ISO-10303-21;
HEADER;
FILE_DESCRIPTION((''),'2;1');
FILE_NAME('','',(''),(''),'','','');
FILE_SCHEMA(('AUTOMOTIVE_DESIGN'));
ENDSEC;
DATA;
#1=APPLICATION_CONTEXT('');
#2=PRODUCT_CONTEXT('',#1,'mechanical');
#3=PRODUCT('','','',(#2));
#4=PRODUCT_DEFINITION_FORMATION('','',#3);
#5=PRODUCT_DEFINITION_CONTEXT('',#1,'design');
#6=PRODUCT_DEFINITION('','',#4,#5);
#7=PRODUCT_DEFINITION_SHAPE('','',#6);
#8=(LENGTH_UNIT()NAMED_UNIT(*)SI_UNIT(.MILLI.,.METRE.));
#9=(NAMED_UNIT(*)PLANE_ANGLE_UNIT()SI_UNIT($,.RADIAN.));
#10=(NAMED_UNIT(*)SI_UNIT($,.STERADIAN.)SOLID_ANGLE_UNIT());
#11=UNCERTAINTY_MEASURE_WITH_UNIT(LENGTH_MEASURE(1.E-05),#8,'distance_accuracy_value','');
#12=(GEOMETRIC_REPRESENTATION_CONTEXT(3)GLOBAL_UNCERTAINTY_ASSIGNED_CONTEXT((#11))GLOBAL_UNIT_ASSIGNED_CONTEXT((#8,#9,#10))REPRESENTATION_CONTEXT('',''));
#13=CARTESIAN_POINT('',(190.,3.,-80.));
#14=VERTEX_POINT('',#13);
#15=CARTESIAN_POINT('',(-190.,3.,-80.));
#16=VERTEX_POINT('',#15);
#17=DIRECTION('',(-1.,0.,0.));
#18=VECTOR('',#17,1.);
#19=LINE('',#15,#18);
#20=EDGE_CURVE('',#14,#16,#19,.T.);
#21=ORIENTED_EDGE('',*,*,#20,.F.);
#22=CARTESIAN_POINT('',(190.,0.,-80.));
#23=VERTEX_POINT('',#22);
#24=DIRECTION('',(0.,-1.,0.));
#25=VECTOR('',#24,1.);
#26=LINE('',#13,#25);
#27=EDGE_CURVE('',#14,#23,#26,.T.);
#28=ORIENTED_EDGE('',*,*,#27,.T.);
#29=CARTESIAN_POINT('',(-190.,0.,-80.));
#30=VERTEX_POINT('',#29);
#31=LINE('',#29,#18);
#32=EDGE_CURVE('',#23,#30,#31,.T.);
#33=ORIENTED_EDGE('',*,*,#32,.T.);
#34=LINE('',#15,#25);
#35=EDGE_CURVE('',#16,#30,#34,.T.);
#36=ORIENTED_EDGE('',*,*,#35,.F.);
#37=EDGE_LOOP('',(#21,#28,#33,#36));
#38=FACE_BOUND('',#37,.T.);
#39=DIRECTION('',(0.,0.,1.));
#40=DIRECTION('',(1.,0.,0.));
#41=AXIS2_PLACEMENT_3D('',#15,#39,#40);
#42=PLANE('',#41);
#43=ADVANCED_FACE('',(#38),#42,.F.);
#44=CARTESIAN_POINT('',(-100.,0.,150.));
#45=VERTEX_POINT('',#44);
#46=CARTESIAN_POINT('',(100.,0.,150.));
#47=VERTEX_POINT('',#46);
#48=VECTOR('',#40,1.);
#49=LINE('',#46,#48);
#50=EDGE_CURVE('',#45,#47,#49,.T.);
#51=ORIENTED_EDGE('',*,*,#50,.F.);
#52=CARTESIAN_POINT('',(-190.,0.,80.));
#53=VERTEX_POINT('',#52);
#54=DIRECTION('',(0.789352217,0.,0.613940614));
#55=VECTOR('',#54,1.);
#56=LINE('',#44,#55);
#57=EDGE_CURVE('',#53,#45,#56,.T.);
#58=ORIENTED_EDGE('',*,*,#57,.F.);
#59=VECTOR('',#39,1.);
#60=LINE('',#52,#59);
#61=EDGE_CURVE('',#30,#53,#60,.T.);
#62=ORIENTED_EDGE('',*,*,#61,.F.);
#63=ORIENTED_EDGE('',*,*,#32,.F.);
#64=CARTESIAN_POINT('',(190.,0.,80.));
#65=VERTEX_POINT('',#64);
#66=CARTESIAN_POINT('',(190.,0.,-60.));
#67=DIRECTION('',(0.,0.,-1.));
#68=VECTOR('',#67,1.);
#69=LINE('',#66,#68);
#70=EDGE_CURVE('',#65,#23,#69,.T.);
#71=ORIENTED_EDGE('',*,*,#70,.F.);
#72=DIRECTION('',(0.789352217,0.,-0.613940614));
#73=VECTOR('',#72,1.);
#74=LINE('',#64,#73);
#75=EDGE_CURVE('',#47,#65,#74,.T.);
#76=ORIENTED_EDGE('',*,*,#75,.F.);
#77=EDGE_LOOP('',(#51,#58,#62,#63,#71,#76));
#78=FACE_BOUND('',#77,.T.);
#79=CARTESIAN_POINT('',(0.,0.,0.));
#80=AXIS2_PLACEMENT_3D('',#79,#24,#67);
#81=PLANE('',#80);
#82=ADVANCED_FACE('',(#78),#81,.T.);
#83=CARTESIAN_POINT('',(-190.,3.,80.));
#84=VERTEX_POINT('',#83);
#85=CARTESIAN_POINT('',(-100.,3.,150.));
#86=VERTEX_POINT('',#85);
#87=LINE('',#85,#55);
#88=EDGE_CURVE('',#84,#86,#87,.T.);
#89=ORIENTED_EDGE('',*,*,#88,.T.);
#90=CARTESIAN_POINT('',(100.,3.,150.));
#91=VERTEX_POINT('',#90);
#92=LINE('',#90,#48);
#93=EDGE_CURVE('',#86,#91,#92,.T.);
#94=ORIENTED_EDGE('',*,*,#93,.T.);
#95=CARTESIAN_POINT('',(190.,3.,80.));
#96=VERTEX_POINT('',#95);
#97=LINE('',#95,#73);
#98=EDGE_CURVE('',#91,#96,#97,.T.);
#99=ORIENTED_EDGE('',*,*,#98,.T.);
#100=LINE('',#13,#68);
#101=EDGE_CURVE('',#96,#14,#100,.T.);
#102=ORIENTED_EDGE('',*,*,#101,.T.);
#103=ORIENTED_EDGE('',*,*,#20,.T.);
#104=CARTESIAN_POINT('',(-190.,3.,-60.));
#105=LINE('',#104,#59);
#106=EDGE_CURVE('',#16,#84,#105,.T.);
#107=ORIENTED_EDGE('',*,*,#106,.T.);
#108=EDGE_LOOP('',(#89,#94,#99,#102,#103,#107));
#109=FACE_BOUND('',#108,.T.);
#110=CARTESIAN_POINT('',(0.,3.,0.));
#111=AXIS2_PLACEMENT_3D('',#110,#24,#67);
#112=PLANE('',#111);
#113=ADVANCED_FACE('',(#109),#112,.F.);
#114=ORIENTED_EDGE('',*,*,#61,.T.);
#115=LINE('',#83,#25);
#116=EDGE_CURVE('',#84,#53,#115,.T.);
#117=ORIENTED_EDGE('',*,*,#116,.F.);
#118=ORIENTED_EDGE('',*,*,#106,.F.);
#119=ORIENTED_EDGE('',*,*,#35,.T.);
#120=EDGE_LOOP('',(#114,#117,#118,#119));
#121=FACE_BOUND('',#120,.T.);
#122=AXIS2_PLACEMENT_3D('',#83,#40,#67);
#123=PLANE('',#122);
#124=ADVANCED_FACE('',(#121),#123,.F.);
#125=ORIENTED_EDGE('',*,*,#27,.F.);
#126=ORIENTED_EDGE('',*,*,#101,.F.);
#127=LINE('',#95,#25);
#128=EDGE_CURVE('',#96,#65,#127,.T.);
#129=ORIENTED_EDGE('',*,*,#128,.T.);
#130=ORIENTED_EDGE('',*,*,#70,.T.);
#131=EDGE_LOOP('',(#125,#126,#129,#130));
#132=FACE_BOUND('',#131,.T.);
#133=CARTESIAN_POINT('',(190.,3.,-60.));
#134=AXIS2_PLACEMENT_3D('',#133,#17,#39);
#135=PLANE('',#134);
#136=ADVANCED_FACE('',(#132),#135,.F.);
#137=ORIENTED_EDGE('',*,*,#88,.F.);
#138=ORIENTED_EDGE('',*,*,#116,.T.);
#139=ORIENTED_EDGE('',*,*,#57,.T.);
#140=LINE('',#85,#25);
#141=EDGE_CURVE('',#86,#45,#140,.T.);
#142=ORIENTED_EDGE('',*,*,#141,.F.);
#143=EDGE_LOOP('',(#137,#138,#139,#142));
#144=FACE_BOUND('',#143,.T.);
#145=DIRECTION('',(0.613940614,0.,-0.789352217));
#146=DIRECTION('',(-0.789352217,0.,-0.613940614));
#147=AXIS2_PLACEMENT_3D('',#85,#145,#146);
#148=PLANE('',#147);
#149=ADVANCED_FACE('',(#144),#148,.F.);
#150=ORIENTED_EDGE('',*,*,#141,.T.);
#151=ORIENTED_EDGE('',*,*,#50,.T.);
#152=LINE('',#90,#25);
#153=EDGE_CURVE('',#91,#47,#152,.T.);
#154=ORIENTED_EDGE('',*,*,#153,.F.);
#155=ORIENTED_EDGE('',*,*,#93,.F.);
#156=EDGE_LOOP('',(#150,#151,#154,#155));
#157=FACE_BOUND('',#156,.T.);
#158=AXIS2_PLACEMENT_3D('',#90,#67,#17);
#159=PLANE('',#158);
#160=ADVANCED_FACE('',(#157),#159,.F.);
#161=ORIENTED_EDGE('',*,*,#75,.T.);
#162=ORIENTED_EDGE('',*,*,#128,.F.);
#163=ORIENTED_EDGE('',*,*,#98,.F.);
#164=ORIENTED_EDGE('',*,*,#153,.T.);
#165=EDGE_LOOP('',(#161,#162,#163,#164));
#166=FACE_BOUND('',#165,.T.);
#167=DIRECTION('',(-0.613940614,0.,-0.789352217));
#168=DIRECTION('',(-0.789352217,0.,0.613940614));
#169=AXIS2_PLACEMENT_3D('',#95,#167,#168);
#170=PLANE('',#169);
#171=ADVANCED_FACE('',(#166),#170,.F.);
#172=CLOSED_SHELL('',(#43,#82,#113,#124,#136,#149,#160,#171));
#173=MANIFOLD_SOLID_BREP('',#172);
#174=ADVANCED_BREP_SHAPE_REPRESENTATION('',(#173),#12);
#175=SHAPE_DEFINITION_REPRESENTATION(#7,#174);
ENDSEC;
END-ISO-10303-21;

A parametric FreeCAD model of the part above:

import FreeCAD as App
import Part
import Sketcher
from FreeCAD import Vector


def add_polygon(sketch, points):
    """Adds a closed chain of lines whose ends are joined by coincident constraints."""
    first, n = sketch.GeometryCount, len(points)
    for a, b in zip(points, points[1:] + points[:1]):
        sketch.addGeometry(Part.LineSegment(App.Vector(*a, 0), App.Vector(*b, 0)), False)
    for i in range(n):
        sketch.addConstraint(Sketcher.Constraint("Coincident", first + i, 2, first + (i + 1) % n, 1))

doc = App.newDocument("Part")
body = doc.addObject("PartDesign::Body", "Body")

# Sketch on XZ plane
sketch1 = body.newObject("Sketcher::SketchObject", "Sketch")
sketch1.AttachmentSupport = (doc.getObject("XZ_Plane"), [""])
sketch1.MapMode = "FlatFace"
add_polygon(sketch1, [(190, -80), (-190, -80), (-190, 80), (-100, 150), (100, 150), (190, 80)])  # lines 0-5
sketch1.addConstraint([
    Sketcher.Constraint("Horizontal", 0),
    Sketcher.Constraint("Vertical", 1),
    Sketcher.Constraint("Horizontal", 3),
    Sketcher.Constraint("Vertical", 5),
    Sketcher.Constraint("Symmetric", 0, 2, 4, 2, -1, 1),
    Sketcher.Constraint("Horizontal", 1, 2, 4, 2),
    Sketcher.Constraint("Equal", 2, 4),
    Sketcher.Constraint("DistanceX", 0, 2, 0, 1, 380.0),
    Sketcher.Constraint("DistanceX", 3, 1, 3, 2, 200.0),
    Sketcher.Constraint("DistanceY", 1, 1, 1, 2, 160.0),
    Sketcher.Constraint("DistanceY", -1, 1, 2, 2, 150.0),
])
pad1 = body.newObject("PartDesign::Pad", "Pad")
pad1.Profile = sketch1
pad1.Length = 3
pad1.Reversed = True

doc.recompute()
